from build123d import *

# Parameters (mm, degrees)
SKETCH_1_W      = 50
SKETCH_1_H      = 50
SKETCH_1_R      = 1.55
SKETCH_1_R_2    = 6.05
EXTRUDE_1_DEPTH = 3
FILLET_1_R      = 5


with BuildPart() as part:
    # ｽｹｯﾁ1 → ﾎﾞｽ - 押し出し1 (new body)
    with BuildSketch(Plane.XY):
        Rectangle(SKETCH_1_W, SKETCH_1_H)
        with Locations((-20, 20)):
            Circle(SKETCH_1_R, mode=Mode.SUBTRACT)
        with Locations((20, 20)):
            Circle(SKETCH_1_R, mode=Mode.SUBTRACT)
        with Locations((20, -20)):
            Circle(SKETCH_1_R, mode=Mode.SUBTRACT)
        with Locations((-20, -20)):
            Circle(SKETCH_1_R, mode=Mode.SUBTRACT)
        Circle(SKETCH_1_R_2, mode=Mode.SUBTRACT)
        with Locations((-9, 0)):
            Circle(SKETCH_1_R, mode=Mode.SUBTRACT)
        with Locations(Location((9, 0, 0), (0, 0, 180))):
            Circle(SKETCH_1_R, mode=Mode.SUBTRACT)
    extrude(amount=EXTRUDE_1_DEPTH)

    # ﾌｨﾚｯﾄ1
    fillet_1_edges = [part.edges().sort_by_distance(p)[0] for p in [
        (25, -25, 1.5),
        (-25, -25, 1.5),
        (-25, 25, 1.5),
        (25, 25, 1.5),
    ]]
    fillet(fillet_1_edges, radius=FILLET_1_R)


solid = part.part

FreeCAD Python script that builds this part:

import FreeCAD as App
import Part
import Sketcher

V = App.Vector


def edges_at(feature, points):
    """Names of the edges that pass closest to the given points."""
    edges = feature.Shape.Edges
    near = lambda p: min(range(len(edges)), key=lambda i: edges[i].distToShape(Part.Vertex(*p))[0])
    return sorted({f"Edge{near(p) + 1}" for p in points})


def add_polygon(sketch, points):
    """Adds a closed chain of lines whose ends are joined by coincident constraints."""
    first, n = sketch.GeometryCount, len(points)
    for a, b in zip(points, points[1:] + points[:1]):
        sketch.addGeometry(Part.LineSegment(App.Vector(*a, 0), App.Vector(*b, 0)), False)
    for i in range(n):
        sketch.addConstraint(Sketcher.Constraint("Coincident", first + i, 2, first + (i + 1) % n, 1))

doc = App.newDocument("Part")
body = doc.addObject("PartDesign::Body", "Body")

sketch1 = body.newObject("Sketcher::SketchObject", "Sketch")
sketch1.AttachmentSupport = (doc.getObject("XY_Plane"), [""])
sketch1.MapMode = "FlatFace"
add_polygon(sketch1, [(-25, 25), (-25, -25), (25, -25), (25, 25)])
sketch1.addGeometry(Part.Circle(V(-20, -20, 0), V(0, 0, 1), 1.6), False)
sketch1.addGeometry(Part.Circle(V(20, -20, 0), V(0, 0, 1), 1.6), False)
sketch1.addGeometry(Part.Circle(V(-9, 0, 0), V(0, 0, 1), 1.6), False)
sketch1.addGeometry(Part.Circle(V(-20, 20, 0), V(0, 0, 1), 1.6), False)
sketch1.addGeometry(Part.Circle(V(0, 0, 0), V(0, 0, 1), 6), False)
sketch1.addGeometry(Part.Circle(V(9, 0, 0), V(0, 0, 1), 1.6), False)
sketch1.addGeometry(Part.Circle(V(20, 20, 0), V(0, 0, 1), 1.6), False)
sketch1.addConstraint(Sketcher.Constraint("Vertical", 0))
sketch1.addConstraint(Sketcher.Constraint("Horizontal", 1))
sketch1.addConstraint(Sketcher.Constraint("Vertical", 2))
sketch1.addConstraint(Sketcher.Constraint("Horizontal", 3))
sketch1.addConstraint(Sketcher.Constraint("Coincident", 8, 3, -1, 1))
sketch1.addConstraint(Sketcher.Constraint("Equal", 4, 5))
sketch1.addConstraint(Sketcher.Constraint("Equal", 5, 6))
sketch1.addConstraint(Sketcher.Constraint("Equal", 6, 7))
sketch1.addConstraint(Sketcher.Constraint("Equal", 7, 9))
sketch1.addConstraint(Sketcher.Constraint("Equal", 9, 10))
sketch1.addConstraint(Sketcher.Constraint("Symmetric", 5, 3, 7, 3, -1, 1))
sketch1.addConstraint(Sketcher.Constraint("Symmetric", 6, 3, 9, 3, -1, 1))
sketch1.addConstraint(Sketcher.Constraint("Symmetric", 4, 3, 10, 3, -1, 1))
sketch1.addConstraint(Sketcher.Constraint("Symmetric", 0, 2, 2, 2, -1, 1))
sketch1.addConstraint(Sketcher.Constraint("Symmetric", 4, 3, 5, 3, -2))
sketch1.addConstraint(Sketcher.Constraint("PointOnObject", 6, 3, -1))
sketch1.addConstraint(Sketcher.Constraint("Equal", 3, 0))
sketch1.addConstraint(Sketcher.Constraint("Diameter", 4, 3.1))
sketch1.addConstraint(Sketcher.Constraint("Diameter", 8, 12.1))
sketch1.addConstraint(Sketcher.Constraint("DistanceX", 1, 1, 1, 2, 50.0))
sketch1.addConstraint(Sketcher.Constraint("DistanceX", 4, 3, -1, 1, 20.0))
sketch1.addConstraint(Sketcher.Constraint("DistanceY", 4, 3, -1, 1, 20.0))
sketch1.addConstraint(Sketcher.Constraint("DistanceX", 6, 3, -1, 1, 9.0))
pad1 = body.newObject("PartDesign::Pad", "Pad")
pad1.Profile = sketch1
pad1.Length = 3
doc.recompute()

fillet = body.newObject("PartDesign::Fillet", "Fillet")
fillet.Base = (pad1, edges_at(pad1, [
    (25, -25, 1.5),
    (-25, -25, 1.5),
    (-25, 25, 1.5),
    (25, 25, 1.5),
]))
fillet.Radius = 5

doc.recompute()
